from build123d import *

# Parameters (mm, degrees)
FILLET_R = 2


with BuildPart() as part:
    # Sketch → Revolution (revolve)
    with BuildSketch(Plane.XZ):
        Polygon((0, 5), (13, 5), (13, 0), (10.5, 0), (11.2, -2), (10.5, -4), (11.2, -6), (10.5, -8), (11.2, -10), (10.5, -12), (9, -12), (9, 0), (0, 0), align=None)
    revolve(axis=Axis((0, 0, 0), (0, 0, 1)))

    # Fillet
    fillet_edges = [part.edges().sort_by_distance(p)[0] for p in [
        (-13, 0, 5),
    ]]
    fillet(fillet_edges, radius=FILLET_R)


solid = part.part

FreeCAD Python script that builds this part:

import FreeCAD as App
import Part
import Sketcher
from FreeCAD import Vector
Q = App.Units.Quantity


def edges_at(feature, points):
    """Names of the edges that pass closest to the given points."""
    edges = feature.Shape.Edges
    near = lambda p: min(range(len(edges)), key=lambda i: edges[i].distToShape(Part.Vertex(*p))[0])
    return sorted({f"Edge{near(p) + 1}" for p in points})


def add_polygon(sketch, points):
    """Adds a closed chain of lines whose ends are joined by coincident constraints."""
    first, n = sketch.GeometryCount, len(points)
    for a, b in zip(points, points[1:] + points[:1]):
        sketch.addGeometry(Part.LineSegment(App.Vector(*a, 0), App.Vector(*b, 0)), False)
    for i in range(n):
        sketch.addConstraint(Sketcher.Constraint("Coincident", first + i, 2, first + (i + 1) % n, 1))

doc = App.newDocument("Part")
params = doc.addObject("Spreadsheet::Sheet", "Params")
for row, (alias, value) in enumerate([
    ("sketch1_width", "13 mm"),
    ("sketch1_width2", "9 mm"),
    ("sketch1_height", "5 mm"),
    ("sketch1_height2", "12 mm"),
    ("sketch1_width3", "1.5 mm"),
    ("revolution_angle", "360 deg"),
    ("fillet_radius", "2 mm"),
], start=1):
    params.set(f"A{row}", alias)
    params.set(f"B{row}", "=" + value)
    params.setAlias(f"B{row}", alias)

body = doc.addObject("PartDesign::Body", "Body")

# Sketch on XZ plane
sketch1 = doc.addObject("Sketcher::SketchObject", "Sketch")
body.addObject(sketch1)
sketch1.AttachmentSupport = (doc.XZ_Plane, [""])
sketch1.MapMode = "FlatFace"
add_polygon(sketch1, [(13, 5), (0, 5), (0, 0), (9, 0), (9, -12), (10.5, -12), (11.2, -10), (10.5, -8), (11.2, -6), (10.5, -4), (11.2, -2), (10.5, 0), (13, 0)])  # lines 0-12
sketch1.addConstraint([
    Sketcher.Constraint("Horizontal", 0),
    Sketcher.Constraint("Vertical", 1),
    Sketcher.Constraint("Horizontal", 2),
    Sketcher.Constraint("Vertical", 3),
    Sketcher.Constraint("Horizontal", 4),
    Sketcher.Constraint("Horizontal", 11),
    Sketcher.Constraint("Vertical", 12),
    Sketcher.Constraint("Coincident", 1, 2, -1, 1),
    Sketcher.Constraint("PointOnObject", 10, 2, -1),
    Sketcher.Constraint("Parallel", 5, 7),
    Sketcher.Constraint("Parallel", 6, 8),
    Sketcher.Constraint("Parallel", 7, 9),
    Sketcher.Constraint("Parallel", 8, 10),
    Sketcher.Constraint("Vertical", 4, 2, 6, 2),
    Sketcher.Constraint("Vertical", 5, 2, 7, 2),
    Sketcher.Constraint("Vertical", 6, 2, 8, 2),
    Sketcher.Constraint("Vertical", 7, 2, 9, 2),
    Sketcher.Constraint("Vertical", 8, 2, 10, 2),
    Sketcher.Constraint("Equal", 5, 6),
    Sketcher.Constraint("DistanceX", 0, 2, 0, 1, Q("13 mm")),
    Sketcher.Constraint("DistanceX", 2, 1, 2, 2, Q("9 mm")),
    Sketcher.Constraint("DistanceY", 1, 2, 1, 1, Q("5 mm")),
    Sketcher.Constraint("DistanceY", 3, 2, 3, 1, Q("12 mm")),
    Sketcher.Constraint("DistanceX", 4, 1, 4, 2, Q("1.5 mm")),
    Sketcher.Constraint("DistanceX", -1, 1, 5, 2, Q("11.2 mm")),
])
sketch1.setExpression("Constraints[32]", "Params.sketch1_width")
sketch1.setExpression("Constraints[33]", "Params.sketch1_width2")
sketch1.setExpression("Constraints[34]", "Params.sketch1_height")
sketch1.setExpression("Constraints[35]", "Params.sketch1_height2")
sketch1.setExpression("Constraints[36]", "Params.sketch1_width3")
revolution = doc.addObject("PartDesign::Revolution", "Revolution")
body.addObject(revolution)
revolution.Profile = sketch1
revolution.ReferenceAxis = (sketch1, ["V_Axis"])
revolution.setExpression("Angle", "Params.revolution_angle")
doc.recompute()

fillet = doc.addObject("PartDesign::Fillet", "Fillet")
body.addObject(fillet)
fillet.Base = (revolution, edges_at(revolution, [(-13, 0, 5)]))
fillet.setExpression("Radius", "Params.fillet_radius")

doc.recompute()
